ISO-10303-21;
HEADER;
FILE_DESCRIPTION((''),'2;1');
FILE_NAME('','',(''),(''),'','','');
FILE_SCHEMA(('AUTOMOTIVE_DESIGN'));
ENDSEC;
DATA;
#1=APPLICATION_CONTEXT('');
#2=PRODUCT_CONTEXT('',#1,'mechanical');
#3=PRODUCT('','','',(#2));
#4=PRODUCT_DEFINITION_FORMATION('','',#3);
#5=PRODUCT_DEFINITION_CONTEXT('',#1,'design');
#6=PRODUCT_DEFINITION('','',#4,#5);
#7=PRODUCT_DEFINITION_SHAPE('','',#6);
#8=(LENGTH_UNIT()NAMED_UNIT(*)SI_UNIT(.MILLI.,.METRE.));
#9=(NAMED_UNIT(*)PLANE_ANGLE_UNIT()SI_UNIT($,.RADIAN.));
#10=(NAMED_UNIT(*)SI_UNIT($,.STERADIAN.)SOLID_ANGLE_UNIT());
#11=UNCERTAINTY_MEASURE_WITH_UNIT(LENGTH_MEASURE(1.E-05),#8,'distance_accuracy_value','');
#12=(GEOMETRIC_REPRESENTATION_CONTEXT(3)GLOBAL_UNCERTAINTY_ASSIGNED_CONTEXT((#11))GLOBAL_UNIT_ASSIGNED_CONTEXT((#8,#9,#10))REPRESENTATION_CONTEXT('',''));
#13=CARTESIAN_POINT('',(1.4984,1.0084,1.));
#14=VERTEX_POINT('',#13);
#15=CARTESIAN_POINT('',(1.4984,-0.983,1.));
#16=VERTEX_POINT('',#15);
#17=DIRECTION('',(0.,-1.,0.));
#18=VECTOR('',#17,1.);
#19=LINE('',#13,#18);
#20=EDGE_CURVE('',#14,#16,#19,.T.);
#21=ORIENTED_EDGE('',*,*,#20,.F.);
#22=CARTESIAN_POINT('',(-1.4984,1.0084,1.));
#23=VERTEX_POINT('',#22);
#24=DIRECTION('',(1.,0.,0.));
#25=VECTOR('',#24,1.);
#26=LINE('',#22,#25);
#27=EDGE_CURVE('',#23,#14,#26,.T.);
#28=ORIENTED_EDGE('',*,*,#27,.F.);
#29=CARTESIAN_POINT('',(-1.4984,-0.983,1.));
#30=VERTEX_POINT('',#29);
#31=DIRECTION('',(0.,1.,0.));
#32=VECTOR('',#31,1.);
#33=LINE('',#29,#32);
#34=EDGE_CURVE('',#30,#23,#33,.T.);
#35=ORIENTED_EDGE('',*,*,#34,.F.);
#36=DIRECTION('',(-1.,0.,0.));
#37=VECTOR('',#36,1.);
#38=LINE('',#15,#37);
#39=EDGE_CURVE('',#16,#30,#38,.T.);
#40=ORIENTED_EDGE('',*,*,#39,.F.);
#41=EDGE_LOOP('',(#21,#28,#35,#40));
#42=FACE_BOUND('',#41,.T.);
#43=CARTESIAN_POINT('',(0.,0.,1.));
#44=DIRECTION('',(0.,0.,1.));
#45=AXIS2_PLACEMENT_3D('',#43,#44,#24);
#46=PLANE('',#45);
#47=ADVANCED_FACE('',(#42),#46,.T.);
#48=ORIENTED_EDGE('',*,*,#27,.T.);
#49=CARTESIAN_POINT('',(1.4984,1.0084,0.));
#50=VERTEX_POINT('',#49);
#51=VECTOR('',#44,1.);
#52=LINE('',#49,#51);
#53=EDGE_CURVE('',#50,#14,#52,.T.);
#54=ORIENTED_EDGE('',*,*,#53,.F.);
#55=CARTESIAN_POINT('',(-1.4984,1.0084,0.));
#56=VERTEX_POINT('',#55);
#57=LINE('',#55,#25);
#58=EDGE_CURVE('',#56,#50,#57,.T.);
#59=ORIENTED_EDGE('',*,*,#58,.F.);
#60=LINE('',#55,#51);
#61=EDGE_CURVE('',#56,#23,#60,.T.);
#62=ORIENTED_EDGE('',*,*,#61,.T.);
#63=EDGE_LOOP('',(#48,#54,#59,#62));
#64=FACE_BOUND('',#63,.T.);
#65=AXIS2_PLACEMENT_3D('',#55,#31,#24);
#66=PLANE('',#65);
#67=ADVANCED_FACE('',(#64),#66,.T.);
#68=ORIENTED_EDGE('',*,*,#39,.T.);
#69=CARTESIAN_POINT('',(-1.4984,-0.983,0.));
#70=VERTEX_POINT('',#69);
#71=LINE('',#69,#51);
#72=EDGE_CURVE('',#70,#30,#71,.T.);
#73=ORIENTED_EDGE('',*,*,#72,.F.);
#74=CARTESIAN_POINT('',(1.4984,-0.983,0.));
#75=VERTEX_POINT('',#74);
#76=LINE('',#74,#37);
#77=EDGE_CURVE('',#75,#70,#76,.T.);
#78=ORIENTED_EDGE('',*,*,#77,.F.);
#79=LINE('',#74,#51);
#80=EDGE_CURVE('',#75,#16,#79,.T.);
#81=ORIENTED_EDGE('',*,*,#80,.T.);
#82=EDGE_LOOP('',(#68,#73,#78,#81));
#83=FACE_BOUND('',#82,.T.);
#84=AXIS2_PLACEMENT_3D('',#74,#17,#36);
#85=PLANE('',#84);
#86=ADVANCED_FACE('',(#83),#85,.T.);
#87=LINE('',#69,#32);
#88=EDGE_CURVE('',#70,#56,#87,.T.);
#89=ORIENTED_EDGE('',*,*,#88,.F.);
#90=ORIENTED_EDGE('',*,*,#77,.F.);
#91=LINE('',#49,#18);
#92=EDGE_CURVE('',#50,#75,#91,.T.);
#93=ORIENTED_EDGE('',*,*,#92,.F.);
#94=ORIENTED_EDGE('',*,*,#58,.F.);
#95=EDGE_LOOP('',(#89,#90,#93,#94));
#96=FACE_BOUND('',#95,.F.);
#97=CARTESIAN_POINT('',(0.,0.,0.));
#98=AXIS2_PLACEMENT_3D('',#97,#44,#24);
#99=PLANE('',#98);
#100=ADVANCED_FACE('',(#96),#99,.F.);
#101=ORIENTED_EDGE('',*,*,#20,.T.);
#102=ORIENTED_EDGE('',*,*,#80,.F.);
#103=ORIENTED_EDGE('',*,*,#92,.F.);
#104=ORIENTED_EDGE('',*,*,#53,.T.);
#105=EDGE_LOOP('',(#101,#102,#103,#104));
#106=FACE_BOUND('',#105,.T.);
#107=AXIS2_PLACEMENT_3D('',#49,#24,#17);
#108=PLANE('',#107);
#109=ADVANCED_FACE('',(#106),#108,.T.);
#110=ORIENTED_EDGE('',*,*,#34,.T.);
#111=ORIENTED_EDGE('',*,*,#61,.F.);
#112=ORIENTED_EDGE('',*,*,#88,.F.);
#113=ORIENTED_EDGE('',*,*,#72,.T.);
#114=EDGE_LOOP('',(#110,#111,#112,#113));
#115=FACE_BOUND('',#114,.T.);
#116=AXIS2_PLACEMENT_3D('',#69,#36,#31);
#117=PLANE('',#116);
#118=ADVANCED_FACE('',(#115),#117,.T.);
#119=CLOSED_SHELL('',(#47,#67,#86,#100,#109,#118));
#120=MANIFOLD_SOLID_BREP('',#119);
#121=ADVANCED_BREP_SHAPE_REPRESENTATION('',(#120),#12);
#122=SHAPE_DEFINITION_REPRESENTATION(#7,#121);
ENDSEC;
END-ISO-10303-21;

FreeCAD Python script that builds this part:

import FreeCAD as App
import Part
import Sketcher

V = App.Vector


def add_polygon(sketch, points):
    """Adds a closed chain of lines whose ends are joined by coincident constraints."""
    first, n = sketch.GeometryCount, len(points)
    for a, b in zip(points, points[1:] + points[:1]):
        sketch.addGeometry(Part.LineSegment(App.Vector(*a, 0), App.Vector(*b, 0)), False)
    for i in range(n):
        sketch.addConstraint(Sketcher.Constraint("Coincident", first + i, 2, first + (i + 1) % n, 1))

doc = App.newDocument("Part")
body = doc.addObject("PartDesign::Body", "Body")

sketch1 = body.newObject("Sketcher::SketchObject", "Sketch")
sketch1.AttachmentSupport = (doc.getObject("XY_Plane"), [""])
sketch1.MapMode = "FlatFace"
add_polygon(sketch1, [(1.5, 1), (-1.5, 1), (-1.5, -1), (1.5, -1)])
sketch1.addConstraint(Sketcher.Constraint("Horizontal", 0))
sketch1.addConstraint(Sketcher.Constraint("Vertical", 1))
sketch1.addConstraint(Sketcher.Constraint("Horizontal", 2))
sketch1.addConstraint(Sketcher.Constraint("Vertical", 3))
sketch1.addConstraint(Sketcher.Constraint("DistanceX", 0, 2, 0, 1, 2.9968))
sketch1.addConstraint(Sketcher.Constraint("DistanceY", 1, 2, 1, 1, 1.9914))
sketch1.addConstraint(Sketcher.Constraint("DistanceY", 1, 2, -1, 1, 0.983))
sketch1.addConstraint(Sketcher.Constraint("DistanceX", 0, 2, -1, 1, 1.4984))
pad1 = body.newObject("PartDesign::Pad", "Pad")
pad1.Profile = sketch1
pad1.Length = 1

doc.recompute()
